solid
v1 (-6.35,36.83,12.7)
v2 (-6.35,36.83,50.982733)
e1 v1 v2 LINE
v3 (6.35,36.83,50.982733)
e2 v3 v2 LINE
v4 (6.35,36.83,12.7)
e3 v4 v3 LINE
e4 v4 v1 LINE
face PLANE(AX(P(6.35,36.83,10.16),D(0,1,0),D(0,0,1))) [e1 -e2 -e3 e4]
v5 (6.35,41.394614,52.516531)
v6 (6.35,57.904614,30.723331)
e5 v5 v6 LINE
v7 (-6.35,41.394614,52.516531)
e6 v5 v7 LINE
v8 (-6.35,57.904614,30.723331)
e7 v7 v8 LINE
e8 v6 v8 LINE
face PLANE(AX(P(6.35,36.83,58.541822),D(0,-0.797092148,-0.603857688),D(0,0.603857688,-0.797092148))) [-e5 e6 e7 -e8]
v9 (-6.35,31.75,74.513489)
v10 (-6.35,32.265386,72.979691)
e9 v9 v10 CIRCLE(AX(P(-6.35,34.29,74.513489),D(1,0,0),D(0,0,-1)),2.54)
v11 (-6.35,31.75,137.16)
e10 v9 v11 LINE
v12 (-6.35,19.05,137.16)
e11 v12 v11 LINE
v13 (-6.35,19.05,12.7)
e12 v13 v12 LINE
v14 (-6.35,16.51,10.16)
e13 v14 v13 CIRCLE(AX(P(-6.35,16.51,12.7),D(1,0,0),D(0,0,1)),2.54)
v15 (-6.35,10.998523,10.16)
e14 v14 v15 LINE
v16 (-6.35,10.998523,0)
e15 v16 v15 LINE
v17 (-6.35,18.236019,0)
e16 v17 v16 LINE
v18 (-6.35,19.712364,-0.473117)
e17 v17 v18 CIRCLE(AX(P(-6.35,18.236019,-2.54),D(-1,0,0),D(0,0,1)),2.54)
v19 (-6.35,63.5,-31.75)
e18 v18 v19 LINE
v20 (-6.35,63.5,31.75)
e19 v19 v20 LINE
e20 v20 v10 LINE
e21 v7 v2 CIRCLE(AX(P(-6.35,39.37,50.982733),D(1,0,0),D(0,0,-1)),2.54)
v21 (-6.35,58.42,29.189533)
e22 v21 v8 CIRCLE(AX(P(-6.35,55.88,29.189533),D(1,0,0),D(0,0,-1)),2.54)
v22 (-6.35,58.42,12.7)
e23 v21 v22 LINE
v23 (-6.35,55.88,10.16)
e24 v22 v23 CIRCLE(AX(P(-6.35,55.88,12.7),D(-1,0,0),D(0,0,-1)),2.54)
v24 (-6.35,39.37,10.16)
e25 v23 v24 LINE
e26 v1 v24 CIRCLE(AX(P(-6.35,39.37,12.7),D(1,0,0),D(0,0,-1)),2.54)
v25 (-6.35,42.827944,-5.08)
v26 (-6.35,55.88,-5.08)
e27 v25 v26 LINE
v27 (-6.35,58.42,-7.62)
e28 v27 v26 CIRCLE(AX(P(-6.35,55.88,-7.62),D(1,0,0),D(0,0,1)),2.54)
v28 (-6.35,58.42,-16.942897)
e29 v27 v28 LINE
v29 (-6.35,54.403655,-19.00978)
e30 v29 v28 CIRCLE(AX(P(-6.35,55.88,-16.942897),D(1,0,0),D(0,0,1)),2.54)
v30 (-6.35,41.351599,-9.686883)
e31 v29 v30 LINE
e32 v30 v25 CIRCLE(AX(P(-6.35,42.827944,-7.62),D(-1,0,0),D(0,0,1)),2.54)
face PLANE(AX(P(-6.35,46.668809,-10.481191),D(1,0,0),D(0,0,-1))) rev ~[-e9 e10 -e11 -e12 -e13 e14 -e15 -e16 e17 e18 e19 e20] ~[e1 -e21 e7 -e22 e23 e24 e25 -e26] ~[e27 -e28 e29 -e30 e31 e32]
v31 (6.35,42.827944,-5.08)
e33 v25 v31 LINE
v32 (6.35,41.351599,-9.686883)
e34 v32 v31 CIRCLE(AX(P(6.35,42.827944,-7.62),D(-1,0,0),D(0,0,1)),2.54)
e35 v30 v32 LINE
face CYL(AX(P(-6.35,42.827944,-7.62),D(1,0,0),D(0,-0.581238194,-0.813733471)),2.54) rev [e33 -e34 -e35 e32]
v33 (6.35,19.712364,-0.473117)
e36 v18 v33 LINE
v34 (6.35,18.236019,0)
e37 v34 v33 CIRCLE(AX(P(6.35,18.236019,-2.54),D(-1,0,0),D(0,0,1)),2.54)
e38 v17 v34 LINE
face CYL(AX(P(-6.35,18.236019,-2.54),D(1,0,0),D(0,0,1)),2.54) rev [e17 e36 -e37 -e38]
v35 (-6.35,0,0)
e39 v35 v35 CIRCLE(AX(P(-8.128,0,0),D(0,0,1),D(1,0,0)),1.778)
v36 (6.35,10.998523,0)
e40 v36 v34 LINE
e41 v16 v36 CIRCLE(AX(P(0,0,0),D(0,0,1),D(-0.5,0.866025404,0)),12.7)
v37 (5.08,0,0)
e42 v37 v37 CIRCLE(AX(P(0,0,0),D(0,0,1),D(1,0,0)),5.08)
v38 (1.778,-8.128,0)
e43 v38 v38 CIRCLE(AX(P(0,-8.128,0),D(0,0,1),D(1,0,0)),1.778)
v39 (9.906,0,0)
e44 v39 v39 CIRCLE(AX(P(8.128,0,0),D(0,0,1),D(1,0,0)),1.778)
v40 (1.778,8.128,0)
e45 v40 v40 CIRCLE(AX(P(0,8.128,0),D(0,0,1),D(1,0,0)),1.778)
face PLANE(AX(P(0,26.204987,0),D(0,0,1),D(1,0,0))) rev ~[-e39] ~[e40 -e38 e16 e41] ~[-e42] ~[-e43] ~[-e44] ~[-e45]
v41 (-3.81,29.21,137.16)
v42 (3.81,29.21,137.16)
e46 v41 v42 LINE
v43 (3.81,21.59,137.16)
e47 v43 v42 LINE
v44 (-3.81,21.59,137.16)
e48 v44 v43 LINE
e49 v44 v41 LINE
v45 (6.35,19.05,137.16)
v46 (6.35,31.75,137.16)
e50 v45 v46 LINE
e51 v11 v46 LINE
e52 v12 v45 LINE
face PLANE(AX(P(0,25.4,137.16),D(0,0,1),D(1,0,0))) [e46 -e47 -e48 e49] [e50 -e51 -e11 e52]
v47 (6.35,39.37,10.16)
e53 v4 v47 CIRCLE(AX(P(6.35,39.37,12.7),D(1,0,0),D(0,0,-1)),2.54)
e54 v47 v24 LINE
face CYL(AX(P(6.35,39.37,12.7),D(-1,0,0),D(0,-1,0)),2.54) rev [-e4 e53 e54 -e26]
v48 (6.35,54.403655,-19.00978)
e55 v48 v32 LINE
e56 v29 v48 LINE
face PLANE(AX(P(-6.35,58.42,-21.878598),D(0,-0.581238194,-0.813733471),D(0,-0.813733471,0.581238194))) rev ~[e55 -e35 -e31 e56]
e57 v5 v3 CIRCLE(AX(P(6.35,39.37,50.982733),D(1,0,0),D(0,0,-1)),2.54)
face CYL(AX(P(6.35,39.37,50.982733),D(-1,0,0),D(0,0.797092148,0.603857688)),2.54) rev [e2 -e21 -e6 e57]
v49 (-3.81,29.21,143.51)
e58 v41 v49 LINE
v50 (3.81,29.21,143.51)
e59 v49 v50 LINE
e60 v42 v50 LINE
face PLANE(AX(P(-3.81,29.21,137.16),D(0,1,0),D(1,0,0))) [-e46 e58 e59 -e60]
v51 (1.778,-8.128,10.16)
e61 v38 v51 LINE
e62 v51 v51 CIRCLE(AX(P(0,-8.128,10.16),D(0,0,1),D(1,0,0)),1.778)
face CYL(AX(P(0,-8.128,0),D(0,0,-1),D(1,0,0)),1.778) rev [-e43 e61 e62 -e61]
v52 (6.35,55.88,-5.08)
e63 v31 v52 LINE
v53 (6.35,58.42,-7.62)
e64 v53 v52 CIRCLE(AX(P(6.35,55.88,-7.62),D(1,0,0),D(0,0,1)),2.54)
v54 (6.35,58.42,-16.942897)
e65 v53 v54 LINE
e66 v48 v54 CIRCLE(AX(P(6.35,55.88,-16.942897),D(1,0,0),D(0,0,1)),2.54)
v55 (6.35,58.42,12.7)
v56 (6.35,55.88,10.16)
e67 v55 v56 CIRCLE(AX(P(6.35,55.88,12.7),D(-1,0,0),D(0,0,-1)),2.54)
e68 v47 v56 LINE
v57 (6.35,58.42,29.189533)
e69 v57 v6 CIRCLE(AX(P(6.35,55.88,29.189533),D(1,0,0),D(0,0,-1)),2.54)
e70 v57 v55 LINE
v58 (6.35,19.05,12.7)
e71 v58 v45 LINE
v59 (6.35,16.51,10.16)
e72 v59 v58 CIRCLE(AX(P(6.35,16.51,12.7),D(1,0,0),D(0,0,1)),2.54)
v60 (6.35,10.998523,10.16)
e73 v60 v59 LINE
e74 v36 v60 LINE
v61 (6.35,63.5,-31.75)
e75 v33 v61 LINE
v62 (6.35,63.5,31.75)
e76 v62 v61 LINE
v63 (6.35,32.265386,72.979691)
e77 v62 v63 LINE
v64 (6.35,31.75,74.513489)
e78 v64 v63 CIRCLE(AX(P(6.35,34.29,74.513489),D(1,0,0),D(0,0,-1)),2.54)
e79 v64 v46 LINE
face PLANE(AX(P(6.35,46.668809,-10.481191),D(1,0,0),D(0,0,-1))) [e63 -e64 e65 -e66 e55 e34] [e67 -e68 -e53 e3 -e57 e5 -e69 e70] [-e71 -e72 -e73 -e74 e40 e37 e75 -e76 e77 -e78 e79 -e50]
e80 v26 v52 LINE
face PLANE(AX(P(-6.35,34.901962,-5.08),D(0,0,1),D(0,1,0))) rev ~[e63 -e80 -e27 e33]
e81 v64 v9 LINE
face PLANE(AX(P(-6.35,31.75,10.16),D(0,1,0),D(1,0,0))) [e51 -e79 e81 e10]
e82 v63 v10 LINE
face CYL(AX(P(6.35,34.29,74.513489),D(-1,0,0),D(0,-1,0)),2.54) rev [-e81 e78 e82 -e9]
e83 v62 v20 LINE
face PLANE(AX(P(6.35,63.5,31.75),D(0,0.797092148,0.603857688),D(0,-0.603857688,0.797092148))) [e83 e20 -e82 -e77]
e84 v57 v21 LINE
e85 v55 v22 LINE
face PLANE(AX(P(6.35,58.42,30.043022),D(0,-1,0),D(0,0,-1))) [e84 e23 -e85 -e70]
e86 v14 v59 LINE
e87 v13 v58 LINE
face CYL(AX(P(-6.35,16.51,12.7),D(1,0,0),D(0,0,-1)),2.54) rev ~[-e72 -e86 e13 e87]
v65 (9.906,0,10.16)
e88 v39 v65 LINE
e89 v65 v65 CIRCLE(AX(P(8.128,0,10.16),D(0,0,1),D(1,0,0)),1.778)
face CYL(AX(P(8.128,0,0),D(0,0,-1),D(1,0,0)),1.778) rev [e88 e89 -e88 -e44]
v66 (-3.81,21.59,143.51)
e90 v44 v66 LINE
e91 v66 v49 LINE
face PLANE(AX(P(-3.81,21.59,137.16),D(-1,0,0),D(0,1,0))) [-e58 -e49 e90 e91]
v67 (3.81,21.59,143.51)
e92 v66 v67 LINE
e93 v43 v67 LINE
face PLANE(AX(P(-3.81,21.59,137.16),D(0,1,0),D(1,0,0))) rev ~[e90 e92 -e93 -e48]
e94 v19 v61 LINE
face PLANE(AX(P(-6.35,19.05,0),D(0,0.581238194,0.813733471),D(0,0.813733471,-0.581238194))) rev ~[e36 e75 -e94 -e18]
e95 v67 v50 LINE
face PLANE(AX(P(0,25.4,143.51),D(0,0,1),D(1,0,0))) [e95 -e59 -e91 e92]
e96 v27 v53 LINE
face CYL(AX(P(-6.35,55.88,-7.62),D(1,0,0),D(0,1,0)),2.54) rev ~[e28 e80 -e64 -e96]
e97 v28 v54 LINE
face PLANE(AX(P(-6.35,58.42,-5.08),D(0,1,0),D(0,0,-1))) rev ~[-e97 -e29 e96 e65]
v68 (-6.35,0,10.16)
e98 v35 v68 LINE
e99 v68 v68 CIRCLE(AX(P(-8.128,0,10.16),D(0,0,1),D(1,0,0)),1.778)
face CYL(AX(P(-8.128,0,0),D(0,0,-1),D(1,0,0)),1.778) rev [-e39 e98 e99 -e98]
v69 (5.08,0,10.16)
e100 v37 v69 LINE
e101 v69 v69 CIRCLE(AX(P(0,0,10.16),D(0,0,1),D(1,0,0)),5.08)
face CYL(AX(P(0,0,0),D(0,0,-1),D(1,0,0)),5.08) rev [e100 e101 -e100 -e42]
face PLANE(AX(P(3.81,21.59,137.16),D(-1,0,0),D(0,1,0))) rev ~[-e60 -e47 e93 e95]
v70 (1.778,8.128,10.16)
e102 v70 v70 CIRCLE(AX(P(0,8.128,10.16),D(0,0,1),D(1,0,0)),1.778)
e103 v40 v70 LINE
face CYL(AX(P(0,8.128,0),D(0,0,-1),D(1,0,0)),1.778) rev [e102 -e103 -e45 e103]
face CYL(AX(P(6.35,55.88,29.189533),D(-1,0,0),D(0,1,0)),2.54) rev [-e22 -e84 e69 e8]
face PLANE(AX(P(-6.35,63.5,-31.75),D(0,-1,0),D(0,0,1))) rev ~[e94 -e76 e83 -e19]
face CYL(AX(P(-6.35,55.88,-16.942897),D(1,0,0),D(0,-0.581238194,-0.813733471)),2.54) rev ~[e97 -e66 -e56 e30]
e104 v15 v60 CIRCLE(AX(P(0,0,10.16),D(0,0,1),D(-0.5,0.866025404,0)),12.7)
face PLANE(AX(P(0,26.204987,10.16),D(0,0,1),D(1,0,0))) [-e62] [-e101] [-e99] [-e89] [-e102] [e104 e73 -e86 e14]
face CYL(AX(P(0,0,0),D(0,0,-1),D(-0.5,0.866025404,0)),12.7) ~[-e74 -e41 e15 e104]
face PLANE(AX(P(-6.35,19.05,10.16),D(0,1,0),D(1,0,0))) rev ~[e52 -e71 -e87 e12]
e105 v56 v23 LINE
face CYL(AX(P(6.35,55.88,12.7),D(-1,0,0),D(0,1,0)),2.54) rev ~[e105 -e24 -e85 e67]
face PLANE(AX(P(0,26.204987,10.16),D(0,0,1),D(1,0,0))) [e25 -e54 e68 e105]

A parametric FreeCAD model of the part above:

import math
import FreeCAD as App
import Part
import Sketcher
Q = App.Units.Quantity


def edges_at(feature, points):
    """Names of the edges that pass closest to the given points."""
    edges = feature.Shape.Edges
    near = lambda p: min(range(len(edges)), key=lambda i: edges[i].distToShape(Part.Vertex(*p))[0])
    return sorted({f"Edge{near(p) + 1}" for p in points})


def add_polygon(sketch, points):
    """Adds a closed chain of lines whose ends are joined by coincident constraints."""
    first, n = sketch.GeometryCount, len(points)
    for a, b in zip(points, points[1:] + points[:1]):
        sketch.addGeometry(Part.LineSegment(App.Vector(*a, 0), App.Vector(*b, 0)), False)
    for i in range(n):
        sketch.addConstraint(Sketcher.Constraint("Coincident", first + i, 2, first + (i + 1) % n, 1))

doc = App.newDocument("Part")
body = doc.addObject("PartDesign::Body", "Body")

# Sketch on XY plane
sketch1 = body.newObject("Sketcher::SketchObject", "Sketch")
sketch1.AttachmentSupport = (doc.getObject("XY_Plane"), [""])
sketch1.MapMode = "FlatFace"
sketch1.addGeometry([
    Part.ArcOfCircle(Part.Circle(App.Vector(0, 0, 0), App.Vector(0, 0, 1), 12.7), math.radians(120), math.radians(420)),  # 0
    Part.LineSegment(App.Vector(6.35, 10.998523, 0), App.Vector(6.35, 63.5, 0)),  # 1
    Part.LineSegment(App.Vector(6.35, 63.5, 0), App.Vector(-6.35, 63.5, 0)),  # 2
    Part.LineSegment(App.Vector(-6.35, 63.5, 0), App.Vector(-6.35, 10.998523, 0)),  # 3
    Part.Circle(App.Vector(0, -8.128, 0), App.Vector(0, 0, 1), 1.778),  # 4
    Part.Circle(App.Vector(-8.128, 0, 0), App.Vector(0, 0, 1), 1.778),  # 5
    Part.Circle(App.Vector(0, 0, 0), App.Vector(0, 0, 1), 5.08),  # 6
    Part.Circle(App.Vector(8.128, 0, 0), App.Vector(0, 0, 1), 1.778),  # 7
    Part.Circle(App.Vector(0, 8.128, 0), App.Vector(0, 0, 1), 1.778),  # 8
], False)
sketch1.addConstraint([
    Sketcher.Constraint("Coincident", 0, 2, 1, 1),
    Sketcher.Constraint("Coincident", 1, 2, 2, 1),
    Sketcher.Constraint("Coincident", 2, 2, 3, 1),
    Sketcher.Constraint("Coincident", 3, 2, 0, 1),
    Sketcher.Constraint("Vertical", 1),
    Sketcher.Constraint("Horizontal", 2),
    Sketcher.Constraint("Vertical", 3),
    Sketcher.Constraint("Coincident", 0, 3, -1, 1),
    Sketcher.Constraint("Coincident", 6, 3, -1, 1),
    Sketcher.Constraint("Equal", 4, 5),
    Sketcher.Constraint("Equal", 5, 7),
    Sketcher.Constraint("Equal", 7, 8),
    Sketcher.Constraint("Symmetric", 5, 3, 7, 3, -1, 1),
    Sketcher.Constraint("Symmetric", 4, 3, 8, 3, -1, 1),
    Sketcher.Constraint("PointOnObject", 4, 3, -2),
    Sketcher.Constraint("PointOnObject", 5, 3, -1),
    Sketcher.Constraint("Horizontal", 0, 2, 3, 2),
    Sketcher.Constraint("Diameter", 6, Q("0.4 in")),
    Sketcher.Constraint("Radius", 0, Q("0.5 in")),
    Sketcher.Constraint("Diameter", 4, Q("0.14 in")),
    Sketcher.Constraint("DistanceX", 2, 2, 2, 1, Q("0.5 in")),
    Sketcher.Constraint("DistanceY", -1, 1, 1, 2, Q("2.5 in")),
    Sketcher.Constraint("DistanceY", 4, 3, -1, 1, Q("0.32 in")),
    Sketcher.Constraint("DistanceX", 5, 3, -1, 1, Q("0.32 in")),
])
pad1 = body.newObject("PartDesign::Pad", "Pad")
pad1.Profile = sketch1
pad1.Length = Q("0.4 in")

# Sketch on XY plane
sketch2 = body.newObject("Sketcher::SketchObject", "Sketch001")
sketch2.AttachmentSupport = (doc.getObject("XY_Plane"), [""])
sketch2.MapMode = "FlatFace"
sketch2.AttachmentOffset = App.Placement(App.Vector(0, 0, 0.4 * 25.4), App.Rotation())
add_polygon(sketch2, [(-6.35, 31.75), (-6.35, 19.05), (6.35, 19.05), (6.35, 31.75)])  # lines 0-3
sketch2.addConstraint([
    Sketcher.Constraint("Vertical", 0),
    Sketcher.Constraint("Horizontal", 1),
    Sketcher.Constraint("Vertical", 2),
    Sketcher.Constraint("Horizontal", 3),
    Sketcher.Constraint("Equal", 3, 0),
    Sketcher.Constraint("DistanceX", 1, 1, 1, 2, Q("0.5 in")),
    Sketcher.Constraint("DistanceX", 0, 2, -1, 1, Q("0.25 in")),
    Sketcher.Constraint("DistanceY", -1, 1, 0, 2, Q("0.75 in")),
])
pad2 = body.newObject("PartDesign::Pad", "Pad001")
pad2.Profile = sketch2
pad2.Length = Q("5 in")

# Sketch on XY plane
sketch3 = body.newObject("Sketcher::SketchObject", "Sketch002")
sketch3.AttachmentSupport = (doc.getObject("XY_Plane"), [""])
sketch3.MapMode = "FlatFace"
sketch3.AttachmentOffset = App.Placement(App.Vector(0, 0, 5.4 * 25.4), App.Rotation())
add_polygon(sketch3, [(-3.81, 29.21), (-3.81, 21.59), (3.81, 21.59), (3.81, 29.21)])  # lines 0-3
sketch3.addConstraint([
    Sketcher.Constraint("Vertical", 0),
    Sketcher.Constraint("Horizontal", 1),
    Sketcher.Constraint("Vertical", 2),
    Sketcher.Constraint("Horizontal", 3),
    Sketcher.Constraint("Equal", 3, 0),
    Sketcher.Constraint("DistanceX", 1, 1, 1, 2, Q("0.3 in")),
    Sketcher.Constraint("DistanceX", 0, 2, -1, 1, Q("0.15 in")),
    Sketcher.Constraint("DistanceY", -1, 1, 0, 2, Q("0.85 in")),
])
pad3 = body.newObject("PartDesign::Pad", "Pad002")
pad3.Profile = sketch3
pad3.Length = Q("0.25 in")

# Sketch on YZ plane
sketch4 = body.newObject("Sketcher::SketchObject", "Sketch003")
sketch4.AttachmentSupport = (doc.getObject("YZ_Plane"), [""])
sketch4.MapMode = "FlatFace"
sketch4.AttachmentOffset = App.Placement(App.Vector(0, 0, 0.25 * 25.4), App.Rotation())
add_polygon(sketch4, [(63.5, 31.75), (63.5, 10.16), (58.42, 10.16), (58.42, 30.043022), (36.83, 58.541822), (36.83, 10.16), (31.75, 10.16), (31.75, 73.66)])  # lines 0-7
sketch4.addConstraint([
    Sketcher.Constraint("Vertical", 0),
    Sketcher.Constraint("Horizontal", 1),
    Sketcher.Constraint("Vertical", 2),
    Sketcher.Constraint("Vertical", 4),
    Sketcher.Constraint("Horizontal", 5),
    Sketcher.Constraint("Vertical", 6),
    Sketcher.Constraint("Parallel", 3, 7),
    Sketcher.Constraint("Horizontal", 1, 2, 4, 2),
    Sketcher.Constraint("Equal", 1, 5),
    Sketcher.Constraint("DistanceX", 1, 2, 1, 1, Q("0.2 in")),
    Sketcher.Constraint("DistanceY", 6, 1, 6, 2, Q("2.5 in")),
    Sketcher.Constraint("DistanceY", 0, 2, 0, 1, Q("0.85 in")),
    Sketcher.Constraint("DistanceX", -1, 1, 0, 2, Q("2.5 in")),
    Sketcher.Constraint("DistanceY", -1, 1, 0, 2, Q("0.4 in")),
    Sketcher.Constraint("DistanceX", -1, 1, 3, 2, Q("1.45 in")),
    Sketcher.Constraint("DistanceY", 2, 1, 2, 2, Q("19.883022 mm")),
])
pad4 = body.newObject("PartDesign::Pad", "Pad003")
pad4.Profile = sketch4
pad4.Length = Q("0.5 in")
pad4.Reversed = True
doc.recompute()

fillet = body.newObject("PartDesign::Fillet", "Fillet")
fillet.Base = (pad4, edges_at(pad4, [(0, 31.75, 73.66)]))
fillet.Radius = Q("0.1 in")

# Sketch on YZ plane
sketch5 = body.newObject("Sketcher::SketchObject", "Sketch004")
sketch5.AttachmentSupport = (doc.getObject("YZ_Plane"), [""])
sketch5.MapMode = "FlatFace"
sketch5.AttachmentOffset = App.Placement(App.Vector(0, 0, -0.25 * 25.4), App.Rotation())
add_polygon(sketch5, [(63.5, 0), (19.05, 0), (63.5, -31.75)])  # lines 0-2
add_polygon(sketch5, [(34.901962, -5.08), (58.42, -5.08), (58.42, -21.878598)])  # lines 3-5
sketch5.addConstraint([
    Sketcher.Constraint("Horizontal", 0),
    Sketcher.Constraint("Vertical", 2),
    Sketcher.Constraint("Horizontal", 3),
    Sketcher.Constraint("Vertical", 4),
    Sketcher.Constraint("PointOnObject", 0, 2, -1),
    Sketcher.Constraint("Parallel", 1, 5),
    Sketcher.Constraint("DistanceX", 0, 2, 0, 1, Q("1.75 in")),
    Sketcher.Constraint("DistanceY", 2, 1, 2, 2, Q("1.25 in")),
    Sketcher.Constraint("DistanceX", -1, 1, 1, 2, Q("2.5 in")),
    Sketcher.Constraint("DistanceX", -1, 1, 3, 2, Q("2.3 in")),
    Sketcher.Constraint("DistanceY", 3, 2, -1, 1, Q("0.2 in")),
    Sketcher.Constraint("DistanceY", 4, 2, 4, 1, Q("16.798598 mm")),
])
pad5 = body.newObject("PartDesign::Pad", "Pad004")
pad5.Profile = sketch5
pad5.Length = Q("0.5 in")
doc.recompute()

fillet2 = body.newObject("PartDesign::Fillet", "Fillet001")
fillet2.Base = (pad5, edges_at(pad5, [
    (0, 19.05, 0),
    (0, 34.902, -5.08),
    (0, 58.42, -5.08),
    (0, 58.42, -21.879),
    (0, 19.05, 10.16),
    (0, 58.42, 10.16),
    (0, 58.42, 30.043),
    (0, 36.83, 58.542),
    (0, 36.83, 10.16),
]))
fillet2.Radius = Q("0.1 in")

doc.recompute()
